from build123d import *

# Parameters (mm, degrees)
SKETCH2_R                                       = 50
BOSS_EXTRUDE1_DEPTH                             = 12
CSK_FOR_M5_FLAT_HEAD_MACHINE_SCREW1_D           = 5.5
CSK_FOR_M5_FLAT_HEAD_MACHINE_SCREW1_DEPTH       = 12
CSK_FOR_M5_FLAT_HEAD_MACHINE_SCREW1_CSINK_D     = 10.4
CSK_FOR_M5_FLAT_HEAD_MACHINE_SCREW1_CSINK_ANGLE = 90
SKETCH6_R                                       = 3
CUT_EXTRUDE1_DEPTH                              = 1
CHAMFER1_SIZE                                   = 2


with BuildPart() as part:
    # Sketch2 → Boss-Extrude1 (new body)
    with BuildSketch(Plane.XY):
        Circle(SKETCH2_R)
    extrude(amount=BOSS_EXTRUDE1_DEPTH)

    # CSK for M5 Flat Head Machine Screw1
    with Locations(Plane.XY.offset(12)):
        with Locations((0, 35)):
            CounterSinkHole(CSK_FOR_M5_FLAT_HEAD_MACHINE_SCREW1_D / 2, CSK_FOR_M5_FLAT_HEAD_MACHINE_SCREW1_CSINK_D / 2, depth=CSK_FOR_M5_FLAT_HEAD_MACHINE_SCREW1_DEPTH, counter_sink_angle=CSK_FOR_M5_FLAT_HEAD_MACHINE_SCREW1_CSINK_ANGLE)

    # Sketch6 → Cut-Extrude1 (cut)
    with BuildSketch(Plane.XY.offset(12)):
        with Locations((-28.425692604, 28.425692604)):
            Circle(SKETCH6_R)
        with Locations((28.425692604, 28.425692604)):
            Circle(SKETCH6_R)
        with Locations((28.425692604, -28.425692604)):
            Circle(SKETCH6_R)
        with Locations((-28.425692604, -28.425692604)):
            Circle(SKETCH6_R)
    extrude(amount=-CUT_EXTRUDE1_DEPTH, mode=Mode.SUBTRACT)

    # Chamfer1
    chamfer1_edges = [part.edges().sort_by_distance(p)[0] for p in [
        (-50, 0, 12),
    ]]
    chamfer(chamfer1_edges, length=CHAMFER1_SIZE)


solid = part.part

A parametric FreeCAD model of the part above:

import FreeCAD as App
import Part
import Sketcher
from FreeCAD import Vector
Q = App.Units.Quantity


def edges_at(feature, points):
    """Names of the edges that pass closest to the given points."""
    edges = feature.Shape.Edges
    near = lambda p: min(range(len(edges)), key=lambda i: edges[i].distToShape(Part.Vertex(*p))[0])
    return sorted({f"Edge{near(p) + 1}" for p in points})

doc = App.newDocument("Part")
body = doc.addObject("PartDesign::Body", "Body")

sketch1 = body.newObject("Sketcher::SketchObject", "Sketch")
sketch1.AttachmentSupport = (doc.getObject("XY_Plane"), [""])
sketch1.MapMode = "FlatFace"
sketch1.addGeometry(Part.Circle(Vector(0, 0, 0), Vector(0, 0, 1), 50), False)
sketch1.addConstraint(Sketcher.Constraint("Coincident", 0, 3, -1, 1))
sketch1.addConstraint(Sketcher.Constraint("Diameter", 0, Q("100 mm")))
pad1 = body.newObject("PartDesign::Pad", "Pad")
pad1.Profile = sketch1
pad1.Length = 12

sketch2 = body.newObject("Sketcher::SketchObject", "Sketch001")
sketch2.AttachmentSupport = (doc.getObject("XY_Plane"), [""])
sketch2.MapMode = "FlatFace"
sketch2.AttachmentOffset = App.Placement(Vector(0, 0, 12), App.Rotation())
sketch2.addGeometry(Part.Circle(Vector(0, 35, 0), Vector(0, 0, 1), 2.8), False)
sketch2.addConstraint(Sketcher.Constraint("PointOnObject", 0, 3, -2))
sketch2.addConstraint(Sketcher.Constraint("Diameter", 0, Q("5.5 mm")))
sketch2.addConstraint(Sketcher.Constraint("DistanceY", -1, 1, 0, 3, Q("35 mm")))
doc.recompute()
hole = body.newObject("PartDesign::Hole", "Hole")
hole.Profile = sketch2
hole.ThreadType = "None"
hole.Diameter = 5.5
hole.DepthType = "Dimension"
hole.Depth = 12
hole.DrillPoint = "Flat"
hole.HoleCutType = "Countersink"
hole.HoleCutDiameter = 10.4
hole.HoleCutCountersinkAngle = 90

sketch3 = body.newObject("Sketcher::SketchObject", "Sketch002")
sketch3.AttachmentSupport = (doc.getObject("XY_Plane"), [""])
sketch3.MapMode = "FlatFace"
sketch3.AttachmentOffset = App.Placement(Vector(0, 0, 12), App.Rotation())
sketch3.addGeometry(Part.Circle(Vector(-28.4, 28.4, 0), Vector(0, 0, 1), 3), False)
sketch3.addGeometry(Part.Circle(Vector(28.4, 28.4, 0), Vector(0, 0, 1), 3), False)
sketch3.addGeometry(Part.Circle(Vector(28.4, -28.4, 0), Vector(0, 0, 1), 3), False)
sketch3.addGeometry(Part.Circle(Vector(-28.4, -28.4, 0), Vector(0, 0, 1), 3), False)
sketch3.addConstraint(Sketcher.Constraint("Equal", 0, 1))
sketch3.addConstraint(Sketcher.Constraint("Equal", 1, 2))
sketch3.addConstraint(Sketcher.Constraint("Equal", 2, 3))
sketch3.addConstraint(Sketcher.Constraint("Symmetric", 0, 3, 2, 3, -1, 1))
sketch3.addConstraint(Sketcher.Constraint("Symmetric", 1, 3, 3, 3, -1, 1))
sketch3.addConstraint(Sketcher.Constraint("Symmetric", 0, 3, 1, 3, -2))
sketch3.addConstraint(Sketcher.Constraint("Diameter", 0, Q("6 mm")))
sketch3.addConstraint(Sketcher.Constraint("DistanceX", 0, 3, -1, 1, Q("28.425693 mm")))
sketch3.addConstraint(Sketcher.Constraint("DistanceY", -1, 1, 0, 3, Q("28.425693 mm")))
pocket1 = body.newObject("PartDesign::Pocket", "Pocket")
pocket1.Profile = sketch3
pocket1.Length = 1
doc.recompute()

chamfer = body.newObject("PartDesign::Chamfer", "Chamfer")
chamfer.Base = (pocket1, edges_at(pocket1, [(-50, 0, 12)]))
chamfer.Size = 2

doc.recompute()
